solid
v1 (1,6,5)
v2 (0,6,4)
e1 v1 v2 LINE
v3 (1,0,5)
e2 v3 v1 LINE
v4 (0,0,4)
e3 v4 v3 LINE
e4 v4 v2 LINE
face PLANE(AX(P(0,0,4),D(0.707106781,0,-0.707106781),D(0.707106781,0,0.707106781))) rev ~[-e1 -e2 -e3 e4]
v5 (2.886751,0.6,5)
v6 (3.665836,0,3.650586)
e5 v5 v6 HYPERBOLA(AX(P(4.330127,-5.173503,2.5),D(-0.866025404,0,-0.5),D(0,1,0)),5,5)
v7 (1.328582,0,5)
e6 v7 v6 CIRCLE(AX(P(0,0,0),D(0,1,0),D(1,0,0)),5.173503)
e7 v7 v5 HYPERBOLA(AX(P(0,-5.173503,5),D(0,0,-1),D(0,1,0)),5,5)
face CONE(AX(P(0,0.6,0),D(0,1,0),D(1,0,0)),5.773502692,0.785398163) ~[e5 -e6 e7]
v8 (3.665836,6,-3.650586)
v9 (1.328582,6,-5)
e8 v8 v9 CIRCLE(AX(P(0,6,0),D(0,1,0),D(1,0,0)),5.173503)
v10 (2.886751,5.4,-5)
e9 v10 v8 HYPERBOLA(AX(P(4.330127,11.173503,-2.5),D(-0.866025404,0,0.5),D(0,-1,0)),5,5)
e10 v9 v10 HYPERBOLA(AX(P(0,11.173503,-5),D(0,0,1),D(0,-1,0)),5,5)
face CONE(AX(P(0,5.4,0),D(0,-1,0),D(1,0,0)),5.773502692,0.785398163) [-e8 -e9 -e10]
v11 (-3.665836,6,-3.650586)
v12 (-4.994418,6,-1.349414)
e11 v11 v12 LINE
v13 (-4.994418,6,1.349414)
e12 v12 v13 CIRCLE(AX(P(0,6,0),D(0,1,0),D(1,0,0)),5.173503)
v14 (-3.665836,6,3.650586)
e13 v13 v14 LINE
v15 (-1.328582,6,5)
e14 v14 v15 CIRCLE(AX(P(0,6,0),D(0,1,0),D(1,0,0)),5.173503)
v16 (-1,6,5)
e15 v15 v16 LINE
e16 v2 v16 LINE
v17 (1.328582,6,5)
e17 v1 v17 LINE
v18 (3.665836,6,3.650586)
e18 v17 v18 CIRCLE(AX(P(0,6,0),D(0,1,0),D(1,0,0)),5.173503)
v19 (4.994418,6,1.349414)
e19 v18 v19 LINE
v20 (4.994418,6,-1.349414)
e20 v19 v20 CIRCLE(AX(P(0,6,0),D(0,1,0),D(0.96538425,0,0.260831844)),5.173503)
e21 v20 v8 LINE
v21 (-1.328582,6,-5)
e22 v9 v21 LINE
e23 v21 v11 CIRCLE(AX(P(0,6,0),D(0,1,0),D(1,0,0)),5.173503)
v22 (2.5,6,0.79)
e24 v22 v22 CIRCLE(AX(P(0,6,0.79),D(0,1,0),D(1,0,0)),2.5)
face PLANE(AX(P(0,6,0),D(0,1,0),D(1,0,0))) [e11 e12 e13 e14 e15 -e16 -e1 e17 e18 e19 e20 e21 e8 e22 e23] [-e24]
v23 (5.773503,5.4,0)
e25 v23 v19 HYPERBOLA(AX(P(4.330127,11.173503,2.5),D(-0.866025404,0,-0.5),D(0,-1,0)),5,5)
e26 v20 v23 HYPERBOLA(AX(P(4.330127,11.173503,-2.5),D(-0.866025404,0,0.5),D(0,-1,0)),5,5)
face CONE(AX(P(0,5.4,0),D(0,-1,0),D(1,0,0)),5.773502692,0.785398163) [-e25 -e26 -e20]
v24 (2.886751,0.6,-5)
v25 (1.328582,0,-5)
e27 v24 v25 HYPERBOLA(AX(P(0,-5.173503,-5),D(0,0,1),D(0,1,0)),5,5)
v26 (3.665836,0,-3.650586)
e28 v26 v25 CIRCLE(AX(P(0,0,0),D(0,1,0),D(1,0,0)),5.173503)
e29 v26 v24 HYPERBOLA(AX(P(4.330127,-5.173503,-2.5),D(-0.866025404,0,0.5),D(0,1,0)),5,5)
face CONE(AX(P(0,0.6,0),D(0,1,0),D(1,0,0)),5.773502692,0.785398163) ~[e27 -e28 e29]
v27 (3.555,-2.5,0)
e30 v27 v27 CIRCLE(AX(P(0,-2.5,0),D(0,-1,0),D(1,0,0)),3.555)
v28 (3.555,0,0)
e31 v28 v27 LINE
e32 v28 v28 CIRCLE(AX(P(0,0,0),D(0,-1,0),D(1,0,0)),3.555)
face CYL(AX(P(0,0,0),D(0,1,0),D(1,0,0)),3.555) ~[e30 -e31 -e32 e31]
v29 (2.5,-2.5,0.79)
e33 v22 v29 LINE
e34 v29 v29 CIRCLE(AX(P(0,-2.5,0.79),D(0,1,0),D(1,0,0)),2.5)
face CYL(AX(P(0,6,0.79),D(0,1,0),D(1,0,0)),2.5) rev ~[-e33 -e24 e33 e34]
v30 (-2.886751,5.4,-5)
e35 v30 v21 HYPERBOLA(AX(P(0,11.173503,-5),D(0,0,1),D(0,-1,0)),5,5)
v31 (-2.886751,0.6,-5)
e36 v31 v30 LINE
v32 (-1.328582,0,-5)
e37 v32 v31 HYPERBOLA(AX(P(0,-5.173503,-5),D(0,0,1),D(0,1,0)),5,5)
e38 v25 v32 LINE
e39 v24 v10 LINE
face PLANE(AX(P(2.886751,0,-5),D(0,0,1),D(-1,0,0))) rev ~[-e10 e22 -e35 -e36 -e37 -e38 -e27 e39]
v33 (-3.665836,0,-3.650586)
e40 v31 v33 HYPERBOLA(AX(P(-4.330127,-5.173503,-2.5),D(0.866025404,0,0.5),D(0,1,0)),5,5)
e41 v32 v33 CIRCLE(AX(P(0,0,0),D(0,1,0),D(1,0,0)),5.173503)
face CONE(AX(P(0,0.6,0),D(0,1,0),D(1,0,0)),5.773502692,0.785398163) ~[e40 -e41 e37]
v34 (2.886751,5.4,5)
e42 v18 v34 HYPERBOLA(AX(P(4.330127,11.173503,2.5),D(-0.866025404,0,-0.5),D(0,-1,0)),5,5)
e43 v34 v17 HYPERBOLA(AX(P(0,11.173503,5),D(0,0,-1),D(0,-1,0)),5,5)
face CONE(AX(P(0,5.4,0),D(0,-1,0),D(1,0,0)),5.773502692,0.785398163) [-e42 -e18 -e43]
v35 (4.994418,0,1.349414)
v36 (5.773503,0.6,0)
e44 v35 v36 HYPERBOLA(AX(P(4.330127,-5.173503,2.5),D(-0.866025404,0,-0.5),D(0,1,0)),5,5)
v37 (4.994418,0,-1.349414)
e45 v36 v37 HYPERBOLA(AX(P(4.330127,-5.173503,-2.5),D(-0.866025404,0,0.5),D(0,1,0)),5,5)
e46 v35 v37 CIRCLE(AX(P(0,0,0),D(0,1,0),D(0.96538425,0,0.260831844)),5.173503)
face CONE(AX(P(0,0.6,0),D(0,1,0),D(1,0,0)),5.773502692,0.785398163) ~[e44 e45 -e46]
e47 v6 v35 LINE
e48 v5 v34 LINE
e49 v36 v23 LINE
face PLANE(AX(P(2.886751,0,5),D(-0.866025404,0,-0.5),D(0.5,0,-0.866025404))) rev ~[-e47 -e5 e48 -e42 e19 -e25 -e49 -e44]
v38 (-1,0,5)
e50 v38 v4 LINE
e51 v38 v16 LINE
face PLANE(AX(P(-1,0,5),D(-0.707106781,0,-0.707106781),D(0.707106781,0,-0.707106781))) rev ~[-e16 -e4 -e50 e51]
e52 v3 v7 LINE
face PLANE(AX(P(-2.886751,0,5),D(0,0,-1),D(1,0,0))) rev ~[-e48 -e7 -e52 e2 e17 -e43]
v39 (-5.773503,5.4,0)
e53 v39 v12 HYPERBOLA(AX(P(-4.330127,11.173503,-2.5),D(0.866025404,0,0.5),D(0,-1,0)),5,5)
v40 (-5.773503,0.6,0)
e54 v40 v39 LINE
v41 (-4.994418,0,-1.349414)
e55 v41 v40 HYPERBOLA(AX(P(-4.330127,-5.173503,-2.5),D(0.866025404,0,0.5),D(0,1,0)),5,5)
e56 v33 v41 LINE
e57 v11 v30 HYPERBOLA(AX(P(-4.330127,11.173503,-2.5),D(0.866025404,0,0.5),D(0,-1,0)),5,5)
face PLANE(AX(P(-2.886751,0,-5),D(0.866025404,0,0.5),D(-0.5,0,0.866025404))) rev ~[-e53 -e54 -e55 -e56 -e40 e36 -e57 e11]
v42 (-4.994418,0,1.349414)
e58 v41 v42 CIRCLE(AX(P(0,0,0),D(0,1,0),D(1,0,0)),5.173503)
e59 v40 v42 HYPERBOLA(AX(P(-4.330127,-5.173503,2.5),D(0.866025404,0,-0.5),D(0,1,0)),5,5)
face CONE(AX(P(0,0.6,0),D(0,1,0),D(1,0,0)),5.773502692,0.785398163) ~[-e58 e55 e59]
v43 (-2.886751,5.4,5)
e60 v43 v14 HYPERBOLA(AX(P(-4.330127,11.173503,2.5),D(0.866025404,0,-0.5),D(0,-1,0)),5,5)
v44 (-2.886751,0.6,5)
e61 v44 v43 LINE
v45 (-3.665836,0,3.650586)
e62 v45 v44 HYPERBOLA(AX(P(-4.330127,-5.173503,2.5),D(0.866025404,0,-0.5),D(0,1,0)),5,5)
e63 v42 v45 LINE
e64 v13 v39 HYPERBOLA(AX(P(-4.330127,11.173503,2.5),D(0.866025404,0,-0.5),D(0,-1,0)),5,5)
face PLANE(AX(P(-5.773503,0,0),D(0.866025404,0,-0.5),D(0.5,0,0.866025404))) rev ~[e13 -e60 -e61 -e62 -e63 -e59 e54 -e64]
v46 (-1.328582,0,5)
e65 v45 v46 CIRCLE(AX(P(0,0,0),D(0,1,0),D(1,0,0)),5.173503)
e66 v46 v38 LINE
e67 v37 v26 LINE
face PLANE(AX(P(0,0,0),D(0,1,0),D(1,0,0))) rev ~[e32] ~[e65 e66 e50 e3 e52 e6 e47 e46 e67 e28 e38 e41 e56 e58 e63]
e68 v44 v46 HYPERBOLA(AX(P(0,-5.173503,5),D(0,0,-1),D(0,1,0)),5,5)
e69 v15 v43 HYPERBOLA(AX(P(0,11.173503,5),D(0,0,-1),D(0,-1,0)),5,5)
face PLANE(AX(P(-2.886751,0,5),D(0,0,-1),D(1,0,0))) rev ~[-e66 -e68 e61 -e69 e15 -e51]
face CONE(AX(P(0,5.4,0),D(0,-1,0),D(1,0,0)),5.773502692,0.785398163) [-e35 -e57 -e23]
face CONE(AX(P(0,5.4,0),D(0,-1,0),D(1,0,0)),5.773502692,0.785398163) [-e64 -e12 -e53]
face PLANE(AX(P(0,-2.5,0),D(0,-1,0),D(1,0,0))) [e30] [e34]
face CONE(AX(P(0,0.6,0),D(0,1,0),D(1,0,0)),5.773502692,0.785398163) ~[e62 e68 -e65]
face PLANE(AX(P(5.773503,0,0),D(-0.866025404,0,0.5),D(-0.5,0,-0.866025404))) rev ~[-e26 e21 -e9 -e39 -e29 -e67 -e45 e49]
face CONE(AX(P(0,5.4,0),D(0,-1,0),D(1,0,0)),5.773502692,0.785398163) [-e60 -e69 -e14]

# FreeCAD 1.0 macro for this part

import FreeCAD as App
import Part
import Sketcher
Q = App.Units.Quantity


def add_polygon(sketch, points):
    """Adds a closed chain of lines whose ends are joined by coincident constraints."""
    first, n = sketch.GeometryCount, len(points)
    for a, b in zip(points, points[1:] + points[:1]):
        sketch.addGeometry(Part.LineSegment(App.Vector(*a, 0), App.Vector(*b, 0)), False)
    for i in range(n):
        sketch.addConstraint(Sketcher.Constraint("Coincident", first + i, 2, first + (i + 1) % n, 1))

doc = App.newDocument("Part")
params = doc.addObject("Spreadsheet::Sheet", "Params")
for row, (alias, value) in enumerate([
    ("pad1_length", "6 mm"),
    ("sketch2_diameter", "7.11 mm"),
    ("pad2_length", "2.5 mm"),
    ("sketch3_diameter", "5 mm"),
    ("sketch4_width", "2 mm"),
    ("sketch5_width", "0.6 mm"),
    ("groove_angle", "360 deg"),
], start=1):
    params.set(f"A{row}", alias)
    params.set(f"B{row}", "=" + value)
    params.setAlias(f"B{row}", alias)

body = doc.addObject("PartDesign::Body", "Body")

sketch1 = body.newObject("Sketcher::SketchObject", "Sketch")
sketch1.AttachmentSupport = (doc.getObject("XZ_Plane"), [""])
sketch1.MapMode = "FlatFace"
add_polygon(sketch1, [(6, 0), (3, -5), (-3, -5), (-6, 0), (-3, 5), (3, 5)])
sketch1.addConstraint([
    Sketcher.Constraint("Horizontal", 1),
    Sketcher.Constraint("Horizontal", 4),
    Sketcher.Constraint("Symmetric", 0, 2, 3, 2, -1, 1),
    Sketcher.Constraint("Symmetric", 2, 2, 5, 2, -1, 1),
    Sketcher.Constraint("PointOnObject", 2, 2, -1),
    Sketcher.Constraint("Parallel", 2, 5),
    Sketcher.Constraint("Vertical", 1, 2, 3, 2),
    Sketcher.Constraint("Angle", 0, Q("-120 deg")),
    Sketcher.Constraint("DistanceY", 0, 2, -1, 1, 5.0),
    Sketcher.Constraint("DistanceX", 1, 2, 1, 1, 5.773503),
])
pad1 = body.newObject("PartDesign::Pad", "Pad")
pad1.Profile = sketch1
pad1.setExpression("Length", "Params.pad1_length")
pad1.Reversed = True

sketch2 = body.newObject("Sketcher::SketchObject", "Sketch001")
sketch2.AttachmentSupport = (doc.getObject("XZ_Plane"), [""])
sketch2.MapMode = "FlatFace"
sketch2.addGeometry(Part.Circle(App.Vector(0, 0, 0), App.Vector(0, 0, 1), 3.6), False)
sketch2.addConstraint([
    Sketcher.Constraint("Coincident", 0, 3, -1, 1),
    Sketcher.Constraint("Diameter", 0, 7.11),
])
sketch2.setExpression("Constraints[1]", "Params.sketch2_diameter")
pad2 = body.newObject("PartDesign::Pad", "Pad001")
pad2.Profile = sketch2
pad2.setExpression("Length", "Params.pad2_length")

sketch3 = body.newObject("Sketcher::SketchObject", "Sketch002")
sketch3.AttachmentSupport = (doc.getObject("XZ_Plane"), [""])
sketch3.MapMode = "FlatFace"
sketch3.AttachmentOffset = App.Placement(App.Vector(0, 0, -6), App.Rotation())
sketch3.addGeometry(Part.Circle(App.Vector(0, 0.8, 0), App.Vector(0, 0, 1), 2.5), False)
sketch3.addConstraint([
    Sketcher.Constraint("PointOnObject", 0, 3, -2),
    Sketcher.Constraint("Diameter", 0, 5.0),
    Sketcher.Constraint("DistanceY", -1, 1, 0, 3, 0.79),
])
sketch3.setExpression("Constraints[1]", "Params.sketch3_diameter")
pocket1 = body.newObject("PartDesign::Pocket", "Pocket")
pocket1.Profile = sketch3
pocket1.Type = "ThroughAll"
pocket1.Reversed = True

sketch4 = body.newObject("Sketcher::SketchObject", "Sketch003")
sketch4.AttachmentSupport = (doc.getObject("XZ_Plane"), [""])
sketch4.MapMode = "FlatFace"
add_polygon(sketch4, [(1, 5), (-1, 5), (0, 4)])
sketch4.addConstraint([
    Sketcher.Constraint("Horizontal", 0),
    Sketcher.Constraint("PointOnObject", 1, 2, -2),
    Sketcher.Constraint("Perpendicular", 1, 2),
    Sketcher.Constraint("Equal", 1, 2),
    Sketcher.Constraint("DistanceX", 0, 2, 0, 1, 2.0),
    Sketcher.Constraint("DistanceY", -1, 1, 0, 2, 5.0),
])
sketch4.setExpression("Constraints[7]", "Params.sketch4_width")
pocket2 = body.newObject("PartDesign::Pocket", "Pocket001")
pocket2.Profile = sketch4
pocket2.Type = "ThroughAll"

sketch5 = body.newObject("Sketcher::SketchObject", "Sketch004")
sketch5.AttachmentSupport = (doc.getObject("XY_Plane"), [""])
sketch5.MapMode = "FlatFace"
add_polygon(sketch5, [(5.8, 6), (5.2, 6), (5.8, 5.4)])
add_polygon(sketch5, [(5.8, 0.6), (5.2, 0), (5.8, 0)])
sketch5.addConstraint([
    Sketcher.Constraint("Horizontal", 0),
    Sketcher.Constraint("Vertical", 2),
    Sketcher.Constraint("Horizontal", 4),
    Sketcher.Constraint("Vertical", 5),
    Sketcher.Constraint("PointOnObject", 3, 2, -1),
    Sketcher.Constraint("Perpendicular", 1, 3),
    Sketcher.Constraint("Vertical", 0, 2, 3, 2),
    Sketcher.Constraint("Vertical", 2, 2, 4, 2),
    Sketcher.Constraint("Equal", 4, 2),
    Sketcher.Constraint("DistanceX", 0, 2, 0, 1, 0.6),
    Sketcher.Constraint("DistanceY", -1, 1, 0, 2, 6.0),
    Sketcher.Constraint("DistanceX", -1, 1, 0, 2, 5.173503),
])
sketch5.setExpression("Constraints[15]", "Params.sketch5_width")
groove = body.newObject("PartDesign::Groove", "Groove")
groove.Profile = sketch5
groove.ReferenceAxis = (sketch5, ["V_Axis"])
groove.setExpression("Angle", "Params.groove_angle")

doc.recompute()
